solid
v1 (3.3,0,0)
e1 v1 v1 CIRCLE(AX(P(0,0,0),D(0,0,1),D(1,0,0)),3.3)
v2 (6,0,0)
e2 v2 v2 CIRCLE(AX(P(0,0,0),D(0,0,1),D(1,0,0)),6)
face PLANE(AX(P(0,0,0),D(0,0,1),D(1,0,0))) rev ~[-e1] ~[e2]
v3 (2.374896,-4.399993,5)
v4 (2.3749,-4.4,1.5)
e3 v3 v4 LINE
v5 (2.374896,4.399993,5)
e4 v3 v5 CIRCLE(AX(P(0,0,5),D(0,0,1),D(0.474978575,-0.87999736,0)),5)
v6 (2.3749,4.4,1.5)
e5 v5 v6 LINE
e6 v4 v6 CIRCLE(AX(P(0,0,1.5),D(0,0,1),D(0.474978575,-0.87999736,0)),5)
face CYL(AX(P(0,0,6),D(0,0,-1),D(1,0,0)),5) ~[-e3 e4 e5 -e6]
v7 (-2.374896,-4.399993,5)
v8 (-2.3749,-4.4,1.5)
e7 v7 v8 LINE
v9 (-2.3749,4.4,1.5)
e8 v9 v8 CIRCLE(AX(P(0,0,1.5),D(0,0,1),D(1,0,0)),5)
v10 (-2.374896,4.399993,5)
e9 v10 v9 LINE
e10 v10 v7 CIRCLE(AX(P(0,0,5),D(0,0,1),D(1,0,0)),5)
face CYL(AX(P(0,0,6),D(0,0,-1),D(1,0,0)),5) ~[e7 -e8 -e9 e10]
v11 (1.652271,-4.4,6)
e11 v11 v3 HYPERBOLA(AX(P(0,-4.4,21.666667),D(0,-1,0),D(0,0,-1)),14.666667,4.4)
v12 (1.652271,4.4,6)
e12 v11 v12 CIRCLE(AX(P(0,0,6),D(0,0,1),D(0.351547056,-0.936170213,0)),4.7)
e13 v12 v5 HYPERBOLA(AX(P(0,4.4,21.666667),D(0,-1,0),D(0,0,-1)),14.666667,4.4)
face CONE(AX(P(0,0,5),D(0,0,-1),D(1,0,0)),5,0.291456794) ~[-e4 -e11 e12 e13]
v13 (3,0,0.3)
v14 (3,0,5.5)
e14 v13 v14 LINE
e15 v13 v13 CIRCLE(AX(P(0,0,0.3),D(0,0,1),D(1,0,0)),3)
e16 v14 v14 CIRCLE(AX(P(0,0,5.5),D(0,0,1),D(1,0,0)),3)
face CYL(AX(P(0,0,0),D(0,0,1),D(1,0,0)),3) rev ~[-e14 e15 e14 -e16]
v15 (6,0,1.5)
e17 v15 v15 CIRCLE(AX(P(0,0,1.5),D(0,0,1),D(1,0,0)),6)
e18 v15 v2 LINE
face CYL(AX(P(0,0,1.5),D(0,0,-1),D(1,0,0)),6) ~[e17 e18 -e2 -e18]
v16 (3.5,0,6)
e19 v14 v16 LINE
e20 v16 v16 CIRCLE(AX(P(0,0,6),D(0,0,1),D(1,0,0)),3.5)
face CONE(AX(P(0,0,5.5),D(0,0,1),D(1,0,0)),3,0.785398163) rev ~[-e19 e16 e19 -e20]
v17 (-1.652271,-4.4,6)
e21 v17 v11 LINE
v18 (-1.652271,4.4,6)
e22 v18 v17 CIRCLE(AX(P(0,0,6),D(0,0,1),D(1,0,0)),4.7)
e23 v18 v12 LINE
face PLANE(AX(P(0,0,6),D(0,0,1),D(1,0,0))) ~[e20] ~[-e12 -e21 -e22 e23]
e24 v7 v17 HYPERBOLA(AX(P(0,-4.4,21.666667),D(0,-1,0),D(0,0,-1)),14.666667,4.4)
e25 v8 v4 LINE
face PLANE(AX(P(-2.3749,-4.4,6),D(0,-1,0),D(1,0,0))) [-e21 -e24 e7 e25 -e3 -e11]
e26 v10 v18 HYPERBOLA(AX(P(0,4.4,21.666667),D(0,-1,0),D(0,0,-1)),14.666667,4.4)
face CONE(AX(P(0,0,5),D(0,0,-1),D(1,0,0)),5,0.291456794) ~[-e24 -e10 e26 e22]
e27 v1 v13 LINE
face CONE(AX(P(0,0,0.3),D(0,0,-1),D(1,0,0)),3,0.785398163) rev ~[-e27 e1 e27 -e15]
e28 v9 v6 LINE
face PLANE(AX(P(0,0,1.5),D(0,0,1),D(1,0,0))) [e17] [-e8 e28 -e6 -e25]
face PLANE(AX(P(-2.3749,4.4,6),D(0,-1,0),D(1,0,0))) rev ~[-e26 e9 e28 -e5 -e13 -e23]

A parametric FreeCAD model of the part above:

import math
import FreeCAD as App
import Part
import Sketcher


def edges_at(feature, points):
    """Names of the edges that pass closest to the given points."""
    edges = feature.Shape.Edges
    near = lambda p: min(range(len(edges)), key=lambda i: edges[i].distToShape(Part.Vertex(*p))[0])
    return sorted({f"Edge{near(p) + 1}" for p in points})

doc = App.newDocument("Part")
body = doc.addObject("PartDesign::Body", "Body")

# Sketch on XZ plane
sketch1 = doc.addObject("Sketcher::SketchObject", "Sketch")
body.addObject(sketch1)
sketch1.AttachmentSupport = (doc.XZ_Plane, [""])
sketch1.MapMode = "FlatFace"
sketch1.addGeometry(Part.LineSegment(App.Vector(6, 0, 0), App.Vector(3, 0, 0)), False)
sketch1.addGeometry(Part.LineSegment(App.Vector(3, 0, 0), App.Vector(3, 6, 0)), False)
sketch1.addGeometry(Part.LineSegment(App.Vector(3, 6, 0), App.Vector(5, 6, 0)), False)
sketch1.addGeometry(Part.LineSegment(App.Vector(5, 6, 0), App.Vector(5, 1.5, 0)), False)
sketch1.addGeometry(Part.LineSegment(App.Vector(5, 1.5, 0), App.Vector(6, 1.5, 0)), False)
sketch1.addGeometry(Part.LineSegment(App.Vector(6, 1.5, 0), App.Vector(6, 0, 0)), False)
sketch1.addConstraint(Sketcher.Constraint("Coincident", 0, 2, 1, 1))
sketch1.addConstraint(Sketcher.Constraint("Coincident", 1, 2, 2, 1))
sketch1.addConstraint(Sketcher.Constraint("Coincident", 2, 2, 3, 1))
sketch1.addConstraint(Sketcher.Constraint("Coincident", 3, 2, 4, 1))
sketch1.addConstraint(Sketcher.Constraint("Coincident", 4, 2, 5, 1))
sketch1.addConstraint(Sketcher.Constraint("Coincident", 5, 2, 0, 1))
sketch1.addConstraint(Sketcher.Constraint("Horizontal", 0))
sketch1.addConstraint(Sketcher.Constraint("Vertical", 1))
sketch1.addConstraint(Sketcher.Constraint("Horizontal", 2))
sketch1.addConstraint(Sketcher.Constraint("Vertical", 3))
sketch1.addConstraint(Sketcher.Constraint("Horizontal", 4))
sketch1.addConstraint(Sketcher.Constraint("Vertical", 5))
sketch1.addConstraint(Sketcher.Constraint("PointOnObject", 0, 2, -1))
sketch1.addConstraint(Sketcher.Constraint("DistanceY", 1, 1, 1, 2, 6.0))
sketch1.addConstraint(Sketcher.Constraint("DistanceY", 5, 2, 5, 1, 1.5))
sketch1.addConstraint(Sketcher.Constraint("DistanceX", -1, 1, 4, 2, 6.0))
sketch1.addConstraint(Sketcher.Constraint("DistanceX", 0, 2, 0, 1, 3.0))
sketch1.addConstraint(Sketcher.Constraint("DistanceX", 2, 1, 2, 2, 2.0))
revolution = doc.addObject("PartDesign::Revolution", "Revolution")
body.addObject(revolution)
revolution.Profile = sketch1
revolution.ReferenceAxis = (sketch1, ["V_Axis"])
revolution.Angle = 360
doc.recompute()

chamfer = doc.addObject("PartDesign::Chamfer", "Chamfer")
body.addObject(chamfer)
chamfer.Base = (revolution, edges_at(revolution, [(-3, 0, 0)]))
chamfer.Size = 0.3
doc.recompute()

chamfer2 = doc.addObject("PartDesign::Chamfer", "Chamfer001")
body.addObject(chamfer2)
chamfer2.Base = (chamfer, edges_at(chamfer, [(-3, 0, 6)]))
chamfer2.Size = 0.5
doc.recompute()

chamfer3 = doc.addObject("PartDesign::Chamfer", "Chamfer002")
body.addObject(chamfer3)
chamfer3.Base = (chamfer2, edges_at(chamfer2, [(-5, 0, 6)]))
chamfer3.ChamferType = "Two distances"
chamfer3.Size = 0.3
chamfer3.Size2 = 1

# Sketch on XY plane
sketch2 = doc.addObject("Sketcher::SketchObject", "Sketch001")
body.addObject(sketch2)
sketch2.AttachmentSupport = (doc.XY_Plane, [""])
sketch2.MapMode = "FlatFace"
sketch2.AttachmentOffset = App.Placement(App.Vector(0, 0, 6), App.Rotation())
sketch2.addGeometry(Part.LineSegment(App.Vector(-2.4, 4.4, 0), App.Vector(2.4, 4.4, 0)), False)
sketch2.addGeometry(Part.ArcOfCircle(Part.Circle(App.Vector(0, 0, 0), App.Vector(0, 0, 1), 5), math.radians(62), math.radians(118)), False)
sketch2.addGeometry(Part.ArcOfCircle(Part.Circle(App.Vector(0, 0, 0), App.Vector(0, 0, 1), 5), math.radians(-118), math.radians(-62)), False)
sketch2.addGeometry(Part.LineSegment(App.Vector(-2.4, -4.4, 0), App.Vector(2.4, -4.4, 0)), False)
sketch2.addConstraint(Sketcher.Constraint("Coincident", 0, 1, 1, 2))
sketch2.addConstraint(Sketcher.Constraint("Coincident", 1, 1, 0, 2))
sketch2.addConstraint(Sketcher.Constraint("Coincident", 2, 1, 3, 1))
sketch2.addConstraint(Sketcher.Constraint("Coincident", 3, 2, 2, 2))
sketch2.addConstraint(Sketcher.Constraint("Horizontal", 0))
sketch2.addConstraint(Sketcher.Constraint("Horizontal", 3))
sketch2.addConstraint(Sketcher.Constraint("Coincident", 1, 3, -1, 1))
sketch2.addConstraint(Sketcher.Constraint("Coincident", 2, 3, -1, 1))
sketch2.addConstraint(Sketcher.Constraint("Equal", 1, 2))
sketch2.addConstraint(Sketcher.Constraint("Vertical", 0, 1, 2, 1))
sketch2.addConstraint(Sketcher.Constraint("Radius", 1, 5.0))
sketch2.addConstraint(Sketcher.Constraint("DistanceY", 2, 1, 0, 1, 8.8))
pocket1 = doc.addObject("PartDesign::Pocket", "Pocket")
body.addObject(pocket1)
pocket1.Profile = sketch2
pocket1.Length = 4.5

doc.recompute()
